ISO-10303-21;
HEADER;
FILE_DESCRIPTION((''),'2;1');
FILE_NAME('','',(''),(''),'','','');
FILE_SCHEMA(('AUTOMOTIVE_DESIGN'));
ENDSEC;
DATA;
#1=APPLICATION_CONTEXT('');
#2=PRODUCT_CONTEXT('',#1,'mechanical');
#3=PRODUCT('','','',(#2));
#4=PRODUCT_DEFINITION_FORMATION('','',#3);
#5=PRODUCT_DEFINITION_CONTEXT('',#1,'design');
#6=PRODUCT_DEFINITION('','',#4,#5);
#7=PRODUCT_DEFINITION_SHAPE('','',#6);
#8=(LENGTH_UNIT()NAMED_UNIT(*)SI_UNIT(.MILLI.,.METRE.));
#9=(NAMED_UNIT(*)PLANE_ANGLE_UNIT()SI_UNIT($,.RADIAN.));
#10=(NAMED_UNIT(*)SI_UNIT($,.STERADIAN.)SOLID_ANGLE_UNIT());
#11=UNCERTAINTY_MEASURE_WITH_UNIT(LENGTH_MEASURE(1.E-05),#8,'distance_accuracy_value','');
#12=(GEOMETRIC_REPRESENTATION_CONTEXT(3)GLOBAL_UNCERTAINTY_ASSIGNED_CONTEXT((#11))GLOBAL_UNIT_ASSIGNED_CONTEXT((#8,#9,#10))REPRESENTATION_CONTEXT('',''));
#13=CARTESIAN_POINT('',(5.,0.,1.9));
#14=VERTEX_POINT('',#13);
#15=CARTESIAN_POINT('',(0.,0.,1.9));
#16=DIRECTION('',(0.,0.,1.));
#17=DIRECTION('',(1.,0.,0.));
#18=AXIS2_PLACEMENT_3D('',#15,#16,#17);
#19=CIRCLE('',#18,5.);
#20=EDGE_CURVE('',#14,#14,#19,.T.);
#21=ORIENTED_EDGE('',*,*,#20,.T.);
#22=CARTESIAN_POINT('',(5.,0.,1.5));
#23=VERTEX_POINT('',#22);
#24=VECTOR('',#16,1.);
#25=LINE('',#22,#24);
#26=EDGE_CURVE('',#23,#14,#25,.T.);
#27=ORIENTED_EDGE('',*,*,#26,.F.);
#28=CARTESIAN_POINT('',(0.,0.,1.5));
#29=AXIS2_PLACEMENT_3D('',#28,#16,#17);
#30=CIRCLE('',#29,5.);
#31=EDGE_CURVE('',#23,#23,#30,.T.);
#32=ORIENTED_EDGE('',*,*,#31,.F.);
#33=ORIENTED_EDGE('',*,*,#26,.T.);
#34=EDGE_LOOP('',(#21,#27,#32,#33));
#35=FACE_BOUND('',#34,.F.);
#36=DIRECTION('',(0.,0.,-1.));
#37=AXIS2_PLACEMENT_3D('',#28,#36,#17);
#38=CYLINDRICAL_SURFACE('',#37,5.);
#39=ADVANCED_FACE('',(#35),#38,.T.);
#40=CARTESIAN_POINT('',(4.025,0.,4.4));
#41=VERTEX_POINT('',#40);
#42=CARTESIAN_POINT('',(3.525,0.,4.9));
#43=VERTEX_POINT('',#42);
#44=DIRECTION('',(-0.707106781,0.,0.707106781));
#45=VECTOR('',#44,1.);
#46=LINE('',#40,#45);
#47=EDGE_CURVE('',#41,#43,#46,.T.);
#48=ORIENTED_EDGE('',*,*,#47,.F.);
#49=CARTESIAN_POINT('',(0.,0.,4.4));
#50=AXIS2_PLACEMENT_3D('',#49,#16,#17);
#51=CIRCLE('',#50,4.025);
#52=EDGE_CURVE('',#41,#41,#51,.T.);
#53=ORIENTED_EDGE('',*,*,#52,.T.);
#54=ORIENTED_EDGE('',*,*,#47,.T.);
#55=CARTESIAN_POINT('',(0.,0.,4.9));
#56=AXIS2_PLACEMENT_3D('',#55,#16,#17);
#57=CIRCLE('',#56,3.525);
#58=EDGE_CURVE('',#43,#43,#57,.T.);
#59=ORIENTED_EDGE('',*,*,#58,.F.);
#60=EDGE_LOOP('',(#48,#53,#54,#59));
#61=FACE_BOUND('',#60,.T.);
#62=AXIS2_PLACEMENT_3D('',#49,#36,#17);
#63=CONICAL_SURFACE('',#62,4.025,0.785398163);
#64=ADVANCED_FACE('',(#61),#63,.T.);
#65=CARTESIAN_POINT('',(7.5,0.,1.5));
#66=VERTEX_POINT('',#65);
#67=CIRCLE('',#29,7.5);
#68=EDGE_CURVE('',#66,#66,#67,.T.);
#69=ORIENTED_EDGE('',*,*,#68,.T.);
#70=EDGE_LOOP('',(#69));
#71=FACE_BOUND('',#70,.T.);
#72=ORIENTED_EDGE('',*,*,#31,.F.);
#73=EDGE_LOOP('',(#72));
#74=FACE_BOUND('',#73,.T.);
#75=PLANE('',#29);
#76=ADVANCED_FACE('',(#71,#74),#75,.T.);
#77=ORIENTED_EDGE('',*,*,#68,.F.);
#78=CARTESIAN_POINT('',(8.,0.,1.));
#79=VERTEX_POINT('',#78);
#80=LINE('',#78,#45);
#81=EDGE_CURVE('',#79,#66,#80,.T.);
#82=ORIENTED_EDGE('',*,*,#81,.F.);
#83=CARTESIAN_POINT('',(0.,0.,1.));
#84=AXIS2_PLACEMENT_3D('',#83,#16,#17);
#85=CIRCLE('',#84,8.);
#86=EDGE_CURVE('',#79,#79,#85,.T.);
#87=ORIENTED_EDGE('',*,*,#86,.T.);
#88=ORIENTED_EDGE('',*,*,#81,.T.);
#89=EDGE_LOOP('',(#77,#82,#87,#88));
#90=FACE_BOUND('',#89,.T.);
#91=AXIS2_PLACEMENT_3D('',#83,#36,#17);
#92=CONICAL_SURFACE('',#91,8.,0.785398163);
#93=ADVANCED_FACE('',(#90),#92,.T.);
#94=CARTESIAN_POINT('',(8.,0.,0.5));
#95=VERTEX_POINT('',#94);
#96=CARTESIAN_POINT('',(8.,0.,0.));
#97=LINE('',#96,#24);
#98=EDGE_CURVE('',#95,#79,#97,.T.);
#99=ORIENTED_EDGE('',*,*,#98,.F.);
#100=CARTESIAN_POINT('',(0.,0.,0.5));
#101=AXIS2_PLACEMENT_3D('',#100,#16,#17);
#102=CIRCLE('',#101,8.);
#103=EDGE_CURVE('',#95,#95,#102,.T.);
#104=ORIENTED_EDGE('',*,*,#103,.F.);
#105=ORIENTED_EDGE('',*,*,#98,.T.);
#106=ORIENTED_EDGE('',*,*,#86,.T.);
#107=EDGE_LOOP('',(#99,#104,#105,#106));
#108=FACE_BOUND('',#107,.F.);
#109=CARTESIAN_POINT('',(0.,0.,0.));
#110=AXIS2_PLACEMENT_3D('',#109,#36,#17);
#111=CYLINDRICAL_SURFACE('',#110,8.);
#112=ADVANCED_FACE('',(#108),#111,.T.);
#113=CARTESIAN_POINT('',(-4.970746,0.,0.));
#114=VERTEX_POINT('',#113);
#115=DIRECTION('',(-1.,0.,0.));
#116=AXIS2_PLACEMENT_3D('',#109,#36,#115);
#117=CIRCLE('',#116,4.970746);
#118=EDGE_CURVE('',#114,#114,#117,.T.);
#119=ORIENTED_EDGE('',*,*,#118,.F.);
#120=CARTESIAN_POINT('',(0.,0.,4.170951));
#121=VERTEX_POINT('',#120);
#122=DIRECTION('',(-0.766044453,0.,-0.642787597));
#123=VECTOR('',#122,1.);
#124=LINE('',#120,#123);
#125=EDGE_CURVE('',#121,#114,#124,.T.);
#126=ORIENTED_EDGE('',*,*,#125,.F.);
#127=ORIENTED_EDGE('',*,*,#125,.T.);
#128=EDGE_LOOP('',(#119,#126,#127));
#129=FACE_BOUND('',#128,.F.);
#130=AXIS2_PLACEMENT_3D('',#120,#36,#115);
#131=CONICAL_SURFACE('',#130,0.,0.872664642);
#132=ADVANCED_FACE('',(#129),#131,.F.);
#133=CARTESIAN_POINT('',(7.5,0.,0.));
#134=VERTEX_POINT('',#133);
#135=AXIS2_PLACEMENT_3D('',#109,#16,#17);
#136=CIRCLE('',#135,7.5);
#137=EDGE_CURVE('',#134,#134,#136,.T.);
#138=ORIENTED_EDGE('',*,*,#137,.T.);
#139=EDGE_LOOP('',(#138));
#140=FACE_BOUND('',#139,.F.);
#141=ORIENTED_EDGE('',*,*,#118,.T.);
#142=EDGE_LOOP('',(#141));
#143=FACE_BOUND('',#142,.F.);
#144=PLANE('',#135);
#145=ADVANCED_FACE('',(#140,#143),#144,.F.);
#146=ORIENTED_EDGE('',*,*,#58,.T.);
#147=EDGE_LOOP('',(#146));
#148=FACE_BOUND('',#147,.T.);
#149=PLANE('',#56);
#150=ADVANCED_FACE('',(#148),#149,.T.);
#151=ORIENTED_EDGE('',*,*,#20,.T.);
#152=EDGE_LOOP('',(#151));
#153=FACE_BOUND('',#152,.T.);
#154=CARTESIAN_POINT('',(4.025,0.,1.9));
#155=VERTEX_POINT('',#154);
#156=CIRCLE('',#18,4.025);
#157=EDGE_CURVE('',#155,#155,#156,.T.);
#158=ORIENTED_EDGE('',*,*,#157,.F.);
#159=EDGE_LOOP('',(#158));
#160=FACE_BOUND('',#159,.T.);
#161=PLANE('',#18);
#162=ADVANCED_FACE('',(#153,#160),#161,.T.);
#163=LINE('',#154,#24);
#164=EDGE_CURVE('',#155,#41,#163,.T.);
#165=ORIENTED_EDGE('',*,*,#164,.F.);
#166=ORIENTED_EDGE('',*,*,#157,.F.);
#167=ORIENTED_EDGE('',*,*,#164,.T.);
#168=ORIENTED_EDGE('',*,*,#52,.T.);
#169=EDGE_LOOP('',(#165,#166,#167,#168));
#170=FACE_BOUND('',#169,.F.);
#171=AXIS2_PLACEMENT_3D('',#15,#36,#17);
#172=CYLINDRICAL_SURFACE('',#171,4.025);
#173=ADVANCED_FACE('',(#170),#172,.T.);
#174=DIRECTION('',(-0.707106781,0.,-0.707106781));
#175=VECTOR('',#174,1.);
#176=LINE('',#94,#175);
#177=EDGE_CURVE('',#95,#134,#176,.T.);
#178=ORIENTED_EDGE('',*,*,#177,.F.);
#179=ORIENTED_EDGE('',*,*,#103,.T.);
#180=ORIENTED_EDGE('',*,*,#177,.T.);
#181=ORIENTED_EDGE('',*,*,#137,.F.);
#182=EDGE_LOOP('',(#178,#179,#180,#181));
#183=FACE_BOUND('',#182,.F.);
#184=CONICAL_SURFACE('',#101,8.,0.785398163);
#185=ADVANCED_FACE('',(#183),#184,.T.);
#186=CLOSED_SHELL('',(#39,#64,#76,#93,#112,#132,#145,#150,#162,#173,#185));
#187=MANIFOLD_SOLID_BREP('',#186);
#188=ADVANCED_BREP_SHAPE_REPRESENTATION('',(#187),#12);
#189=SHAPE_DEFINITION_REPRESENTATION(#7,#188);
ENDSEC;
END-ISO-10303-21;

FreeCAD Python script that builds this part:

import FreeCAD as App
import Part
import Sketcher
Q = App.Units.Quantity


def edges_at(feature, points):
    """Names of the edges that pass closest to the given points."""
    edges = feature.Shape.Edges
    near = lambda p: min(range(len(edges)), key=lambda i: edges[i].distToShape(Part.Vertex(*p))[0])
    return sorted({f"Edge{near(p) + 1}" for p in points})

doc = App.newDocument("Part")
body = doc.addObject("PartDesign::Body", "Body")

sketch1 = body.newObject("Sketcher::SketchObject", "Sketch")
sketch1.AttachmentSupport = (doc.getObject("XY_Plane"), [""])
sketch1.MapMode = "FlatFace"
sketch1.addGeometry(Part.Circle(App.Vector(0, 0, 0), App.Vector(0, 0, 1), 8), False)
sketch1.addConstraint([
    Sketcher.Constraint("Coincident", 0, 3, -1, 1),
    Sketcher.Constraint("Diameter", 0, Q("16 mm")),
])
pad1 = body.newObject("PartDesign::Pad", "Pad")
pad1.Profile = sketch1
pad1.Length = 1.5

sketch2 = body.newObject("Sketcher::SketchObject", "Sketch001")
sketch2.AttachmentSupport = (doc.getObject("XY_Plane"), [""])
sketch2.MapMode = "FlatFace"
sketch2.AttachmentOffset = App.Placement(App.Vector(0, 0, 1.5), App.Rotation())
sketch2.addGeometry(Part.Circle(App.Vector(0, 0, 0), App.Vector(0, 0, 1), 5), False)
sketch2.addConstraint([
    Sketcher.Constraint("Coincident", 0, 3, -1, 1),
    Sketcher.Constraint("Diameter", 0, Q("10 mm")),
])
pad2 = body.newObject("PartDesign::Pad", "Pad001")
pad2.Profile = sketch2
pad2.Length = 0.4

sketch3 = body.newObject("Sketcher::SketchObject", "Sketch002")
sketch3.AttachmentSupport = (doc.getObject("XY_Plane"), [""])
sketch3.MapMode = "FlatFace"
sketch3.AttachmentOffset = App.Placement(App.Vector(0, 0, 1.9), App.Rotation())
sketch3.addGeometry(Part.Circle(App.Vector(0, 0, 0), App.Vector(0, 0, 1), 4), False)
sketch3.addConstraint([
    Sketcher.Constraint("Coincident", 0, 3, -1, 1),
    Sketcher.Constraint("Diameter", 0, Q("8.05 mm")),
])
pad3 = body.newObject("PartDesign::Pad", "Pad002")
pad3.Profile = sketch3
pad3.Length = 3
doc.recompute()

chamfer = body.newObject("PartDesign::Chamfer", "Chamfer")
chamfer.Base = (pad3, edges_at(pad3, [(-8, 0, 0), (-8, 0, 1.5), (-4.025, 0, 4.9)]))
chamfer.Size = 0.5

sketch4 = body.newObject("Sketcher::SketchObject", "Sketch003")
sketch4.AttachmentSupport = (doc.getObject("XZ_Plane"), [""])
sketch4.MapMode = "FlatFace"
sketch4.addGeometry([
    Part.LineSegment(App.Vector(0, 4.2, 0), App.Vector(-5, 0, 0)),
    Part.LineSegment(App.Vector(-5, 0, 0), App.Vector(0, 0, 0)),
    Part.LineSegment(App.Vector(0, 0, 0), App.Vector(0, 4.2, 0)),
], False)
sketch4.addConstraint([
    Sketcher.Constraint("Coincident", 0, 2, 1, 1),
    Sketcher.Constraint("Coincident", 1, 2, 2, 1),
    Sketcher.Constraint("Coincident", 2, 2, 0, 1),
    Sketcher.Constraint("Horizontal", 1),
    Sketcher.Constraint("Vertical", 2),
    Sketcher.Constraint("Coincident", 1, 2, -1, 1),
    Sketcher.Constraint("Angle", 0, Q("-140.000001 deg")),
    Sketcher.Constraint("DistanceY", 2, 1, 2, 2, Q("4.170951 mm")),
])
groove = body.newObject("PartDesign::Groove", "Groove")
groove.Profile = sketch4
groove.ReferenceAxis = (sketch4, ["V_Axis"])
groove.Angle = 360

doc.recompute()
